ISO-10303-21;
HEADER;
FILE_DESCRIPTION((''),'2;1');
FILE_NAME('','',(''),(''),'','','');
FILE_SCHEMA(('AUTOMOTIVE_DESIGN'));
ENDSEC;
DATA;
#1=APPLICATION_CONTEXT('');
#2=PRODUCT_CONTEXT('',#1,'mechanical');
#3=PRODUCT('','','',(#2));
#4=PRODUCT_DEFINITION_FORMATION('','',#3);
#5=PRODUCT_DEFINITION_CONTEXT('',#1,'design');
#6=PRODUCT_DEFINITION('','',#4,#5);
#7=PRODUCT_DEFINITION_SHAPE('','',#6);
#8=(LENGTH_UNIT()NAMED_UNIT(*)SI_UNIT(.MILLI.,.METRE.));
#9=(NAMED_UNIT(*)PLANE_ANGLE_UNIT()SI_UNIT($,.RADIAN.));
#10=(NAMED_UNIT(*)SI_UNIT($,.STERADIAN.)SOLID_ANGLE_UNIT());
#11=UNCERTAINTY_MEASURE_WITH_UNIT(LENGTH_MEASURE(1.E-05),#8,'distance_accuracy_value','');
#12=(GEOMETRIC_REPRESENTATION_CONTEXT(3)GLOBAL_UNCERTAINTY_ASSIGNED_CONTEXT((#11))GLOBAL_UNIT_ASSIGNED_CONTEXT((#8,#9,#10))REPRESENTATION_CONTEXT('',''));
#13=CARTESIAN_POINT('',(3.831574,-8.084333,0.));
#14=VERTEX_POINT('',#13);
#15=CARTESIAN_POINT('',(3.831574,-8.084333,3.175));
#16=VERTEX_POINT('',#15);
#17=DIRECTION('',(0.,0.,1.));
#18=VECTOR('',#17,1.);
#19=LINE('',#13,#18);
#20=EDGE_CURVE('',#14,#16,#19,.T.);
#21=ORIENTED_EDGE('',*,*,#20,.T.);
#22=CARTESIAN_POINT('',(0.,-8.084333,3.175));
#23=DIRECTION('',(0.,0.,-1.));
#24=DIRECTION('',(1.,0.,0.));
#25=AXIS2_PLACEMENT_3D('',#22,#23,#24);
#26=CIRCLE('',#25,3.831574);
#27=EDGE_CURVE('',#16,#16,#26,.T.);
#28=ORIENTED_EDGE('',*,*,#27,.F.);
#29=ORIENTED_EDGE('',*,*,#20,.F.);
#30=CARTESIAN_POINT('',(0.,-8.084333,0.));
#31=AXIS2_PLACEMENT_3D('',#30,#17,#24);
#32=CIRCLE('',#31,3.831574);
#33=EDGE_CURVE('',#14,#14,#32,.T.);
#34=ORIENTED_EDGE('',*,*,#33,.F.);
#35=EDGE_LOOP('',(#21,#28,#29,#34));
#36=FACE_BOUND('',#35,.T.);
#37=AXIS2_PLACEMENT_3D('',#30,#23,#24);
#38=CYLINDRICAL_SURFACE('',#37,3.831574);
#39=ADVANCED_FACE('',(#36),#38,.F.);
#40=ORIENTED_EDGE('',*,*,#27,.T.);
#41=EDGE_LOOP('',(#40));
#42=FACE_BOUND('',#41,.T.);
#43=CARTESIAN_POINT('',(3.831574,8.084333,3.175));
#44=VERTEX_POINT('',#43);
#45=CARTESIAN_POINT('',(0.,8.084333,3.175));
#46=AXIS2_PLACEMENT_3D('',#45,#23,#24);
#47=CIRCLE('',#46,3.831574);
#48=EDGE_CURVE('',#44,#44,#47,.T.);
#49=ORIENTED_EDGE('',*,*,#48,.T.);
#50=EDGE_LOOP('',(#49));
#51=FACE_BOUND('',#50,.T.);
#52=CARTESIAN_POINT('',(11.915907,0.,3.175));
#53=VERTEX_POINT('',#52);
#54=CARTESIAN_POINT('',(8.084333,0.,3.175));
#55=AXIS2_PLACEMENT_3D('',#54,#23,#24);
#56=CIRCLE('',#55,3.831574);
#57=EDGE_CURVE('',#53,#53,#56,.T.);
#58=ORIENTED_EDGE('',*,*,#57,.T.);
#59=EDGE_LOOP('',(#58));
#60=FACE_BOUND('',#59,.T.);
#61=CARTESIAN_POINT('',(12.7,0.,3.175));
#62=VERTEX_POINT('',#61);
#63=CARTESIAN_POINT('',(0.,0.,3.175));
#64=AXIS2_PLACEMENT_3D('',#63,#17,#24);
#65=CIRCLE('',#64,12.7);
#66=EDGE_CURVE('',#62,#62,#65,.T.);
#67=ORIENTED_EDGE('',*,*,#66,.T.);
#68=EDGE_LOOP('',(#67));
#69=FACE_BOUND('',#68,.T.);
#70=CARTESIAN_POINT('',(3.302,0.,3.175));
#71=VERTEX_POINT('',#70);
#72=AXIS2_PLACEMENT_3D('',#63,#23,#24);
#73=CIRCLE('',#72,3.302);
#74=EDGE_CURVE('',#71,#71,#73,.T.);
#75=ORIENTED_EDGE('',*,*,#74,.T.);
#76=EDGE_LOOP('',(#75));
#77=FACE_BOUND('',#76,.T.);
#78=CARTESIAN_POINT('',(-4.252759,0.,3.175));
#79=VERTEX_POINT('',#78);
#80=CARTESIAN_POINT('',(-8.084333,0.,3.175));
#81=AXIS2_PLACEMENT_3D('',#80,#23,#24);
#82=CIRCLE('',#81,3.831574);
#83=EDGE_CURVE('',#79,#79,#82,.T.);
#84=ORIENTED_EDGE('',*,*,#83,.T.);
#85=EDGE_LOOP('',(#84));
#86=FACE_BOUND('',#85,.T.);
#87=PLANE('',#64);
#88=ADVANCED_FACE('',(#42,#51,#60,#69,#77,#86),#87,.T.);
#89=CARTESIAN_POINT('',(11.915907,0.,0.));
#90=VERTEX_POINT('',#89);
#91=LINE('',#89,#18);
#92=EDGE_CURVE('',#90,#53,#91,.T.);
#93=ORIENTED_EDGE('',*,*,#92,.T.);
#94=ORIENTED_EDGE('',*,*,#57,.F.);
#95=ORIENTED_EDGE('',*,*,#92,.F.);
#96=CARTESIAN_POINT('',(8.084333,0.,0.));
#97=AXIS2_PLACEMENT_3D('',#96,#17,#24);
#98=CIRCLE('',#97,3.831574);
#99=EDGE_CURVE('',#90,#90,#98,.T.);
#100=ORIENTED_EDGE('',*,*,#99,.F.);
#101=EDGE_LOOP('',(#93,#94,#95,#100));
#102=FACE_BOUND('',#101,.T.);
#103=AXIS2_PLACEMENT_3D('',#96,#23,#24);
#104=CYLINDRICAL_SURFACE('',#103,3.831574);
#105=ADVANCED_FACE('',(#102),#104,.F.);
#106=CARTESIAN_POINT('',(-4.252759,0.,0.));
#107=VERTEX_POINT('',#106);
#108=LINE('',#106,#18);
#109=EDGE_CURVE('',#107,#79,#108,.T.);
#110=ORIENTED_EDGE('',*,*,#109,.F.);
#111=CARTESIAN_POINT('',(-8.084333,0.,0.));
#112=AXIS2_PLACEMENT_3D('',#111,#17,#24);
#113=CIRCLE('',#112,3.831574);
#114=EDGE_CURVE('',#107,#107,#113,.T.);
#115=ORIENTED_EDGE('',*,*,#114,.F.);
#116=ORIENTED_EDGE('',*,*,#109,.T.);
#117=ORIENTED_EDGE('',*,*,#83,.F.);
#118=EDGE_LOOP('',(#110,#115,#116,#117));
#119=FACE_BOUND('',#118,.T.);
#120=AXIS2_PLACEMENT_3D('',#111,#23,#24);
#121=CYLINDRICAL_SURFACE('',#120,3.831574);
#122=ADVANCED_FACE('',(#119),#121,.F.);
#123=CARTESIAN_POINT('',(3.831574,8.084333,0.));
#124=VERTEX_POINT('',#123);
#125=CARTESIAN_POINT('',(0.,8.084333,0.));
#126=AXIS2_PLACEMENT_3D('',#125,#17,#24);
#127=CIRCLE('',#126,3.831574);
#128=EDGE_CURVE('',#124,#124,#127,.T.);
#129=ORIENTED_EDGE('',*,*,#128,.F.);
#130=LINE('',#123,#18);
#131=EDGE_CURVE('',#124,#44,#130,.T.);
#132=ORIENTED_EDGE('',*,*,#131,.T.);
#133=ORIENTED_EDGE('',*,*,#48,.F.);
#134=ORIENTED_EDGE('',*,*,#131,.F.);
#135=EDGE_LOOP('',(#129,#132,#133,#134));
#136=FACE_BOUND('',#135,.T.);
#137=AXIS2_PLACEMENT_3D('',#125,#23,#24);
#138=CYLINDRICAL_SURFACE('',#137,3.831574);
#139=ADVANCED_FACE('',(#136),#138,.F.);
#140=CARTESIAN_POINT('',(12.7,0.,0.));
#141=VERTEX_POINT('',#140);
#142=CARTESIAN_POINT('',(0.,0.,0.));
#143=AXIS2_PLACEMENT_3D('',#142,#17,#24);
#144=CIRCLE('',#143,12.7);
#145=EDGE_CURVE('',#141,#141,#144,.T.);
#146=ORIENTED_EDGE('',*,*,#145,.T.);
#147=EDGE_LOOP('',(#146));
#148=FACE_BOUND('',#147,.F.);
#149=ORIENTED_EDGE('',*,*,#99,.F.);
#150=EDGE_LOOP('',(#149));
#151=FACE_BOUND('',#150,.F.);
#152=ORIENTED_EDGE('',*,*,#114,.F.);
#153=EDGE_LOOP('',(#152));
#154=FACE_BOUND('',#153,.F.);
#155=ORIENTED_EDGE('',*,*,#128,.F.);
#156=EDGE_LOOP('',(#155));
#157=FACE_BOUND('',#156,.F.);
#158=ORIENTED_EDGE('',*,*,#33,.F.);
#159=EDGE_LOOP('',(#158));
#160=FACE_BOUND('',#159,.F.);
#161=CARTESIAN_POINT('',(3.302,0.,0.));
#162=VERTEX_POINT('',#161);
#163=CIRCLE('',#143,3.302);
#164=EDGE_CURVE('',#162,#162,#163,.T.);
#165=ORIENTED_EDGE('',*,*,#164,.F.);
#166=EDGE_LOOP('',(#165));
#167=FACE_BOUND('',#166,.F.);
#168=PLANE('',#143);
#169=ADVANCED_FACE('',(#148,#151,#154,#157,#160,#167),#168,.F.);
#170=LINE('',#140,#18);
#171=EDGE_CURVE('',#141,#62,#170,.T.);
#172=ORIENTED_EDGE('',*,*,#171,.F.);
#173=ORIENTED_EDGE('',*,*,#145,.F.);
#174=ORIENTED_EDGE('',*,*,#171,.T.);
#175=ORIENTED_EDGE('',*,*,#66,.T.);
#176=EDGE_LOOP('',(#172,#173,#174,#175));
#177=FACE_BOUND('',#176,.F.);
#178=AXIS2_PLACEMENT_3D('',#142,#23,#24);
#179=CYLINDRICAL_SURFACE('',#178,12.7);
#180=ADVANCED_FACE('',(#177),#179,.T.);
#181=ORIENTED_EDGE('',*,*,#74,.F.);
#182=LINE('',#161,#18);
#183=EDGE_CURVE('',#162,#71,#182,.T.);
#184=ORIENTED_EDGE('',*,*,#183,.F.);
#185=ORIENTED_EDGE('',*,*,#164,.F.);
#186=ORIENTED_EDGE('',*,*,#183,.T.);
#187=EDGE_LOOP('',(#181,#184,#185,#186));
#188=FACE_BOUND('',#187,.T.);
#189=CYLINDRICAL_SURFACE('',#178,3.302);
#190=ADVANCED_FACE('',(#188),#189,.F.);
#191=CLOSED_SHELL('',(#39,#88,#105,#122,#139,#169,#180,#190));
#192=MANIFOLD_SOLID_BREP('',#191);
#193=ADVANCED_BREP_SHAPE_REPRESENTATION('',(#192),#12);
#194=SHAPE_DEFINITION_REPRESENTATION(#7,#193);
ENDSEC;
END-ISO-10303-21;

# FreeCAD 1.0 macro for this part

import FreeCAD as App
import Part
import Sketcher
from FreeCAD import Vector
Q = App.Units.Quantity

doc = App.newDocument("Part")
body = doc.addObject("PartDesign::Body", "Body")

# Sketch on XY plane
sketch1 = body.newObject("Sketcher::SketchObject", "Sketch")
sketch1.AttachmentSupport = (doc.getObject("XY_Plane"), [""])
sketch1.MapMode = "FlatFace"
sketch1.addGeometry(Part.Circle(Vector(0, 0, 0), Vector(0, 0, 1), 13), False)
sketch1.addConstraint([
    Sketcher.Constraint("Coincident", 0, 3, -1, 1),
    Sketcher.Constraint("Diameter", 0, Q("1 in")),
])
pad1 = body.newObject("PartDesign::Pad", "Pad")
pad1.Profile = sketch1
pad1.Length = Q("0.125 in")

# Sketch on XY plane
sketch2 = body.newObject("Sketcher::SketchObject", "Sketch001")
sketch2.AttachmentSupport = (doc.getObject("XY_Plane"), [""])
sketch2.MapMode = "FlatFace"
sketch2.addGeometry(Part.Circle(Vector(0, 0, 0), Vector(0, 0, 1), 3.3), False)
sketch2.addConstraint([
    Sketcher.Constraint("Coincident", 0, 3, -1, 1),
    Sketcher.Constraint("Diameter", 0, Q("0.26 in")),
])
pocket1 = body.newObject("PartDesign::Pocket", "Pocket")
pocket1.Profile = sketch2
pocket1.Length = Q("1 in")
pocket1.Reversed = True

# Sketch on XY plane
sketch3 = body.newObject("Sketcher::SketchObject", "Sketch002")
sketch3.AttachmentSupport = (doc.getObject("XY_Plane"), [""])
sketch3.MapMode = "FlatFace"
sketch3.addGeometry([
    Part.Circle(Vector(0, 8.1, 0), Vector(0, 0, 1), 3.8),
    Part.Circle(Vector(-8.1, 0, 0), Vector(0, 0, 1), 3.8),
    Part.Circle(Vector(0, -8.1, 0), Vector(0, 0, 1), 3.8),
    Part.Circle(Vector(8.1, 0, 0), Vector(0, 0, 1), 3.8),
], False)
sketch3.addConstraint([
    Sketcher.Constraint("Equal", 0, 1),
    Sketcher.Constraint("Equal", 1, 2),
    Sketcher.Constraint("Equal", 2, 3),
    Sketcher.Constraint("Symmetric", 0, 3, 2, 3, -1, 1),
    Sketcher.Constraint("Symmetric", 1, 3, 3, 3, -1, 1),
    Sketcher.Constraint("PointOnObject", 0, 3, -2),
    Sketcher.Constraint("PointOnObject", 1, 3, -1),
    Sketcher.Constraint("Diameter", 0, Q("7.663148 mm")),
    Sketcher.Constraint("DistanceY", -1, 1, 0, 3, Q("8.084333 mm")),
    Sketcher.Constraint("DistanceX", 1, 3, -1, 1, Q("8.084333 mm")),
])
pocket2 = body.newObject("PartDesign::Pocket", "Pocket001")
pocket2.Profile = sketch3
pocket2.Length = Q("1 in")
pocket2.Reversed = True

doc.recompute()
